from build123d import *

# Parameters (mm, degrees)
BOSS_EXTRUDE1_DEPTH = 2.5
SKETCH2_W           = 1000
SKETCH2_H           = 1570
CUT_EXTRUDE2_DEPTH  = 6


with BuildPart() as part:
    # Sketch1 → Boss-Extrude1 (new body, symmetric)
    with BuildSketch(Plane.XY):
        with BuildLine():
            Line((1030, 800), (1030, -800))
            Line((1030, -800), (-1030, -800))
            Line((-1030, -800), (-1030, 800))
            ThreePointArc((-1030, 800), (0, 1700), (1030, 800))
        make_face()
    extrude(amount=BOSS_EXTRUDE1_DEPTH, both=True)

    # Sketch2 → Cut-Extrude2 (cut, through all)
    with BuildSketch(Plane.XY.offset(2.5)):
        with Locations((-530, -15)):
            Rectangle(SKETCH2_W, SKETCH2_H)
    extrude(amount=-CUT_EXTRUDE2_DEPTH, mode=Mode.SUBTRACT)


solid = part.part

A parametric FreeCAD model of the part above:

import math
import FreeCAD as App
import Part
import Sketcher
from FreeCAD import Vector
Q = App.Units.Quantity

doc = App.newDocument("Part")
body = doc.addObject("PartDesign::Body", "Body")

# Sketch on XY plane
sketch1 = body.newObject("Sketcher::SketchObject", "Sketch")
sketch1.AttachmentSupport = (doc.getObject("XY_Plane"), [""])
sketch1.MapMode = "FlatFace"
sketch1.addGeometry([
    Part.LineSegment(Vector(1030, -800, 0), Vector(1030, 800, 0)),
    Part.ArcOfCircle(Part.Circle(Vector(0, 661, 0), Vector(0, 0, 1), 1039), math.radians(8), math.radians(172)),
    Part.LineSegment(Vector(-1030, 800, 0), Vector(-1030, -800, 0)),
    Part.LineSegment(Vector(-1030, -800, 0), Vector(1030, -800, 0)),
], False)
sketch1.addConstraint([
    Sketcher.Constraint("Coincident", 0, 2, 1, 1),
    Sketcher.Constraint("Coincident", 1, 2, 2, 1),
    Sketcher.Constraint("Coincident", 2, 2, 3, 1),
    Sketcher.Constraint("Coincident", 3, 2, 0, 1),
    Sketcher.Constraint("Vertical", 0),
    Sketcher.Constraint("Vertical", 2),
    Sketcher.Constraint("Horizontal", 3),
    Sketcher.Constraint("Symmetric", 0, 2, 2, 2, -1, 1),
    Sketcher.Constraint("PointOnObject", 1, 3, -2),
    Sketcher.Constraint("DistanceX", 3, 1, 3, 2, Q("2060 mm")),
    Sketcher.Constraint("DistanceY", 0, 1, 0, 2, Q("1600 mm")),
    Sketcher.Constraint("Radius", 1, Q("1039.388889 mm")),
])
pad1 = body.newObject("PartDesign::Pad", "Pad")
pad1.Profile = sketch1
pad1.Length = 5
pad1.Midplane = True

# Sketch on XY plane
sketch2 = body.newObject("Sketcher::SketchObject", "Sketch001")
sketch2.AttachmentSupport = (doc.getObject("XY_Plane"), [""])
sketch2.MapMode = "FlatFace"
sketch2.AttachmentOffset = App.Placement(Vector(0, 0, 2.5), App.Rotation())
sketch2.addGeometry([
    Part.LineSegment(Vector(-1030, 770, 0), Vector(-1030, -800, 0)),
    Part.LineSegment(Vector(-1030, -800, 0), Vector(-30, -800, 0)),
    Part.LineSegment(Vector(-30, -800, 0), Vector(-30, 770, 0)),
    Part.LineSegment(Vector(-30, 770, 0), Vector(-1030, 770, 0)),
], False)
sketch2.addConstraint([
    Sketcher.Constraint("Coincident", 0, 2, 1, 1),
    Sketcher.Constraint("Coincident", 1, 2, 2, 1),
    Sketcher.Constraint("Coincident", 2, 2, 3, 1),
    Sketcher.Constraint("Coincident", 3, 2, 0, 1),
    Sketcher.Constraint("Vertical", 0),
    Sketcher.Constraint("Horizontal", 1),
    Sketcher.Constraint("Vertical", 2),
    Sketcher.Constraint("Horizontal", 3),
    Sketcher.Constraint("DistanceX", 1, 1, 1, 2, Q("1000 mm")),
    Sketcher.Constraint("DistanceY", 0, 2, 0, 1, Q("1570 mm")),
    Sketcher.Constraint("DistanceX", 0, 2, -1, 1, Q("1030 mm")),
    Sketcher.Constraint("DistanceY", 0, 2, -1, 1, Q("800 mm")),
])
pocket1 = body.newObject("PartDesign::Pocket", "Pocket")
pocket1.Profile = sketch2
pocket1.Type = "ThroughAll"

doc.recompute()
